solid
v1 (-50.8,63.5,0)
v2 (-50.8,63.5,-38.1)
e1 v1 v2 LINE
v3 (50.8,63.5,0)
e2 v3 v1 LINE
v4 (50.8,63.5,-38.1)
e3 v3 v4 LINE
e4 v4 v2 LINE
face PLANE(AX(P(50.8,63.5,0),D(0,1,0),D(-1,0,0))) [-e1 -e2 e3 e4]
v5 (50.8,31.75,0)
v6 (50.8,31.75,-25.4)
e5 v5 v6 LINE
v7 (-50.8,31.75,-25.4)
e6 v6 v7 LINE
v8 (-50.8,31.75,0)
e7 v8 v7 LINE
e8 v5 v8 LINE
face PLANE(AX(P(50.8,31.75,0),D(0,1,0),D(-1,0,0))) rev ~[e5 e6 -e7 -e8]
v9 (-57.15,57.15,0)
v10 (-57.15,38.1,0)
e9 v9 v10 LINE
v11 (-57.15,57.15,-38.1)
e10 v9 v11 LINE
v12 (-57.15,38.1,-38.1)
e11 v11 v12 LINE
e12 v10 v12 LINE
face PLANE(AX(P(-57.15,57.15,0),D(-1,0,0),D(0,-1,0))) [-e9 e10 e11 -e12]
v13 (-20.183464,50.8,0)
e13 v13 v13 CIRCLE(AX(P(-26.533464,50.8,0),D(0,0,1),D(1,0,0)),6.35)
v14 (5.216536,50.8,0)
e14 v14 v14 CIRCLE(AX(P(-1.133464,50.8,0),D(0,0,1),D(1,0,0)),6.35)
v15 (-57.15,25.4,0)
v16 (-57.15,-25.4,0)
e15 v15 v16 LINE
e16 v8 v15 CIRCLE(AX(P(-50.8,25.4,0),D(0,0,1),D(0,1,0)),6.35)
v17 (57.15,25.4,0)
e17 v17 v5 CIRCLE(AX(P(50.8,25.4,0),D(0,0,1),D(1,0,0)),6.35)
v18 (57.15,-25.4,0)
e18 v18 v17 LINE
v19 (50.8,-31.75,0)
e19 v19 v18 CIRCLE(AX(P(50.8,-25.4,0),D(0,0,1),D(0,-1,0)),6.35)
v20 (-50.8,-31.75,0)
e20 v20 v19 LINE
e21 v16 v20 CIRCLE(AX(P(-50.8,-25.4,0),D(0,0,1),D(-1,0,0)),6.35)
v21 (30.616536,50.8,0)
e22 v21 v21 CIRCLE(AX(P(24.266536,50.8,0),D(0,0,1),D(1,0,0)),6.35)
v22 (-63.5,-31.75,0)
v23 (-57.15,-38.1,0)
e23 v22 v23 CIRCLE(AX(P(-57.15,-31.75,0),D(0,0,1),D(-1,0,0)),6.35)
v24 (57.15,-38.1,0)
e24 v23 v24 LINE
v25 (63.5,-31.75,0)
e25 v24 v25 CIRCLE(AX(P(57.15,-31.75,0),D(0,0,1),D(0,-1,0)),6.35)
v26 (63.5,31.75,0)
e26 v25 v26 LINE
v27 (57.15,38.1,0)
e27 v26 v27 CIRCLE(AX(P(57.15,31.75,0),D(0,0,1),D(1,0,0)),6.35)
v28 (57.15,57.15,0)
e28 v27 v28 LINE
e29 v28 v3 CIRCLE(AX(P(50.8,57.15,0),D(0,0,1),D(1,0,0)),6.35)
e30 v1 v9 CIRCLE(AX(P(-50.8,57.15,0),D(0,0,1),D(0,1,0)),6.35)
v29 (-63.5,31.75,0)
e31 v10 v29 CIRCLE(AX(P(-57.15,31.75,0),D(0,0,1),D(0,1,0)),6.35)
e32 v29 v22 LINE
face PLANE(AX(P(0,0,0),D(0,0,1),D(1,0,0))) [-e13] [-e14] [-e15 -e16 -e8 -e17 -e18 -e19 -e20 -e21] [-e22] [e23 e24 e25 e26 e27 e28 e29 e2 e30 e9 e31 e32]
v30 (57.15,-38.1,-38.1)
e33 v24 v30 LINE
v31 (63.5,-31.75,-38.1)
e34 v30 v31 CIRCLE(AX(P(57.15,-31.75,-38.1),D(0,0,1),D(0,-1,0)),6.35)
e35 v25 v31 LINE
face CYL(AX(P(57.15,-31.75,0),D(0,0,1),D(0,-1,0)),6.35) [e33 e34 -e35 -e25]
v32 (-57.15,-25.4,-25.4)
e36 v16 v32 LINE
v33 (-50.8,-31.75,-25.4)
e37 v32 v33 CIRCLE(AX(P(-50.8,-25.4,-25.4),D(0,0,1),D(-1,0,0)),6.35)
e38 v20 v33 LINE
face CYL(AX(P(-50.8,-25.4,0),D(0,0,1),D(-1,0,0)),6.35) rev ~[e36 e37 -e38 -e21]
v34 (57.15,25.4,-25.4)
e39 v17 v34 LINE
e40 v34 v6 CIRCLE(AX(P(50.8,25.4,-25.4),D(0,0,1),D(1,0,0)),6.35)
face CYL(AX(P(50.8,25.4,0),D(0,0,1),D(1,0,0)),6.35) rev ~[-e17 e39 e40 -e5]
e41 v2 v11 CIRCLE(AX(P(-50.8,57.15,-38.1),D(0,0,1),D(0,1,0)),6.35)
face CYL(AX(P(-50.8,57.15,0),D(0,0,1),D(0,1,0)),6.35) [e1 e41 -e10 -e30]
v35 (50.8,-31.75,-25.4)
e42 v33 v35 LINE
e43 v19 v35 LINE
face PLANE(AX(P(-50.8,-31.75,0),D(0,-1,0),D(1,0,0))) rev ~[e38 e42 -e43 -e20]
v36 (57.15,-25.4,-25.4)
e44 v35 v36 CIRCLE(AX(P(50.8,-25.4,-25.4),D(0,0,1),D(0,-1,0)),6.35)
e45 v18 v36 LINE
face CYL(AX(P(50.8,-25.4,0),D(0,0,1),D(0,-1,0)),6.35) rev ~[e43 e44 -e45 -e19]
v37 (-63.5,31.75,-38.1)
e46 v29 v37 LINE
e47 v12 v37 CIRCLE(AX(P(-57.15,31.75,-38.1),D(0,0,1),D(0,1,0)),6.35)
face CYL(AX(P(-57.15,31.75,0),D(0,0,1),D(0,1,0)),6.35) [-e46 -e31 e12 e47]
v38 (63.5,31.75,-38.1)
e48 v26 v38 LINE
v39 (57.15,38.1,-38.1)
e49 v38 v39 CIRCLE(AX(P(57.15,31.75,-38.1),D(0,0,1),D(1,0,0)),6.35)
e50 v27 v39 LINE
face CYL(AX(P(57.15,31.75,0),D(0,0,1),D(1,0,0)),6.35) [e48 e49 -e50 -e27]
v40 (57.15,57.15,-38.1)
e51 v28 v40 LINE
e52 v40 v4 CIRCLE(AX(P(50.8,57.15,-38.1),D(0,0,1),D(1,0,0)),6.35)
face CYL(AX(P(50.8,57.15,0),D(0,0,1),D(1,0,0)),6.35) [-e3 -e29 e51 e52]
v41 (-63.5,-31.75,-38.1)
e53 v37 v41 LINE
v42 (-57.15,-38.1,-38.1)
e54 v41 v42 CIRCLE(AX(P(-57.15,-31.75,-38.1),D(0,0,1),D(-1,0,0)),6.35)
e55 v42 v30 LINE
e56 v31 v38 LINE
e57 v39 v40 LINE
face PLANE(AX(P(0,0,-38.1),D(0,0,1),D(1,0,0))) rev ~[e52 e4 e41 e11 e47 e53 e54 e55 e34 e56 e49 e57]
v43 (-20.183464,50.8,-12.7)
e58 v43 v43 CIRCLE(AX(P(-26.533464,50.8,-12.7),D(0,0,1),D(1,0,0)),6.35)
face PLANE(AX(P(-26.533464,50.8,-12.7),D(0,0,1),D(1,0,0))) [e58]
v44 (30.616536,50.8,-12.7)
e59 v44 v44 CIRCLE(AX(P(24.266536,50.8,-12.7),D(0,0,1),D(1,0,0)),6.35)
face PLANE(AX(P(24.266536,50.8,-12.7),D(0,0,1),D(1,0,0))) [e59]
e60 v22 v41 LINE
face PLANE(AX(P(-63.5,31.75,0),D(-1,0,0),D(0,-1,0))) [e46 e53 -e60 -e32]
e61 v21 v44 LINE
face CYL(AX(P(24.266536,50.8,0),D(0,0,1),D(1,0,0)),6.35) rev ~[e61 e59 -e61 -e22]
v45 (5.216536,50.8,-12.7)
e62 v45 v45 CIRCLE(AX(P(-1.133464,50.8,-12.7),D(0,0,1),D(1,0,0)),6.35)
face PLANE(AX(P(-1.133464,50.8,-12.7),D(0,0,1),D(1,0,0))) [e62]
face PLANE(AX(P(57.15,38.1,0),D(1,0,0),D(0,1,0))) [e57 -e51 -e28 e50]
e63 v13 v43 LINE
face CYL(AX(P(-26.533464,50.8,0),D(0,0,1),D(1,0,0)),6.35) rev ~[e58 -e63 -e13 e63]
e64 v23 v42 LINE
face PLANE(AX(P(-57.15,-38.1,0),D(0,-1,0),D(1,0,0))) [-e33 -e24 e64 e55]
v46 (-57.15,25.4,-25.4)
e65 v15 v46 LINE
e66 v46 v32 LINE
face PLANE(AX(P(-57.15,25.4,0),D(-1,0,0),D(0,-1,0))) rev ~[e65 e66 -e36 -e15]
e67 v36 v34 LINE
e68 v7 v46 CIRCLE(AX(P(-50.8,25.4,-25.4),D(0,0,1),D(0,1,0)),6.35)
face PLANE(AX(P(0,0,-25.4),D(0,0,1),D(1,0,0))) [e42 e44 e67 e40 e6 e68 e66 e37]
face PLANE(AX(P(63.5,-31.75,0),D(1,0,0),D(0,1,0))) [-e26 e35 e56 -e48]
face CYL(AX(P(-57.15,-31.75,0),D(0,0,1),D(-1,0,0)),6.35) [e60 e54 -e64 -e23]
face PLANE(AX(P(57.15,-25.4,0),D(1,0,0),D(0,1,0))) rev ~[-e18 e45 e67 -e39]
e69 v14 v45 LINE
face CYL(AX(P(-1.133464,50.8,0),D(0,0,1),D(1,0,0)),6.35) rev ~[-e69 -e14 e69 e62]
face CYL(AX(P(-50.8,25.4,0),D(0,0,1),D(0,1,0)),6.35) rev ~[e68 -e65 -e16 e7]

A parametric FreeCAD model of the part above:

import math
import FreeCAD as App
import Part
import Sketcher
Q = App.Units.Quantity

doc = App.newDocument("Part")
body = doc.addObject("PartDesign::Body", "Body")

# Sketch on XY plane
sketch1 = doc.addObject("Sketcher::SketchObject", "Sketch")
body.addObject(sketch1)
sketch1.AttachmentSupport = (doc.XY_Plane, [""])
sketch1.MapMode = "FlatFace"
sketch1.addGeometry(Part.ArcOfCircle(Part.Circle(App.Vector(-57.15, -31.75, 0), App.Vector(0, 0, 1), 6.35), math.radians(180), math.radians(270)), False)
sketch1.addGeometry(Part.LineSegment(App.Vector(-57.15, -38.1, 0), App.Vector(57.15, -38.1, 0)), False)
sketch1.addGeometry(Part.ArcOfCircle(Part.Circle(App.Vector(57.15, -31.75, 0), App.Vector(0, 0, 1), 6.35), math.radians(-90), math.radians(0)), False)
sketch1.addGeometry(Part.LineSegment(App.Vector(63.5, -31.75, 0), App.Vector(63.5, 31.75, 0)), False)
sketch1.addGeometry(Part.ArcOfCircle(Part.Circle(App.Vector(57.15, 31.75, 0), App.Vector(0, 0, 1), 6.35), math.radians(0), math.radians(90)), False)
sketch1.addGeometry(Part.LineSegment(App.Vector(57.15, 38.1, 0), App.Vector(57.15, 57.15, 0)), False)
sketch1.addGeometry(Part.ArcOfCircle(Part.Circle(App.Vector(50.8, 57.15, 0), App.Vector(0, 0, 1), 6.35), math.radians(0), math.radians(90)), False)
sketch1.addGeometry(Part.LineSegment(App.Vector(50.8, 63.5, 0), App.Vector(-50.8, 63.5, 0)), False)
sketch1.addGeometry(Part.ArcOfCircle(Part.Circle(App.Vector(-50.8, 57.15, 0), App.Vector(0, 0, 1), 6.35), math.radians(90), math.radians(180)), False)
sketch1.addGeometry(Part.LineSegment(App.Vector(-57.15, 57.15, 0), App.Vector(-57.15, 38.1, 0)), False)
sketch1.addGeometry(Part.ArcOfCircle(Part.Circle(App.Vector(-57.15, 31.75, 0), App.Vector(0, 0, 1), 6.35), math.radians(90), math.radians(180)), False)
sketch1.addGeometry(Part.LineSegment(App.Vector(-63.5, 31.75, 0), App.Vector(-63.5, -31.75, 0)), False)
sketch1.addConstraint(Sketcher.Constraint("Tangent", 0, 2, 1, 1))
sketch1.addConstraint(Sketcher.Constraint("Tangent", 1, 2, 2, 1))
sketch1.addConstraint(Sketcher.Constraint("Tangent", 2, 2, 3, 1))
sketch1.addConstraint(Sketcher.Constraint("Tangent", 3, 2, 4, 1))
sketch1.addConstraint(Sketcher.Constraint("Coincident", 4, 2, 5, 1))
sketch1.addConstraint(Sketcher.Constraint("Tangent", 5, 2, 6, 1))
sketch1.addConstraint(Sketcher.Constraint("Tangent", 6, 2, 7, 1))
sketch1.addConstraint(Sketcher.Constraint("Tangent", 7, 2, 8, 1))
sketch1.addConstraint(Sketcher.Constraint("Tangent", 8, 2, 9, 1))
sketch1.addConstraint(Sketcher.Constraint("Coincident", 9, 2, 10, 1))
sketch1.addConstraint(Sketcher.Constraint("Tangent", 10, 2, 11, 1))
sketch1.addConstraint(Sketcher.Constraint("Tangent", 11, 2, 0, 1))
sketch1.addConstraint(Sketcher.Constraint("Horizontal", 1))
sketch1.addConstraint(Sketcher.Constraint("Vertical", 3))
sketch1.addConstraint(Sketcher.Constraint("Vertical", 5))
sketch1.addConstraint(Sketcher.Constraint("Horizontal", 7))
sketch1.addConstraint(Sketcher.Constraint("Vertical", 9))
sketch1.addConstraint(Sketcher.Constraint("Vertical", 11))
sketch1.addConstraint(Sketcher.Constraint("Equal", 0, 2))
sketch1.addConstraint(Sketcher.Constraint("Equal", 2, 4))
sketch1.addConstraint(Sketcher.Constraint("Equal", 4, 6))
sketch1.addConstraint(Sketcher.Constraint("Equal", 6, 8))
sketch1.addConstraint(Sketcher.Constraint("Equal", 8, 10))
sketch1.addConstraint(Sketcher.Constraint("Symmetric", 0, 3, 4, 3, -1, 1))
sketch1.addConstraint(Sketcher.Constraint("Symmetric", 1, 2, 9, 2, -1, 1))
sketch1.addConstraint(Sketcher.Constraint("Vertical", 1, 2, 4, 2))
sketch1.addConstraint(Sketcher.Constraint("DistanceX", 7, 2, 7, 1, Q("4 in")))
sketch1.addConstraint(Sketcher.Constraint("Radius", 0, Q("0.25 in")))
sketch1.addConstraint(Sketcher.Constraint("DistanceY", 3, 1, 3, 2, Q("2.5 in")))
sketch1.addConstraint(Sketcher.Constraint("DistanceY", 4, 3, 6, 3, Q("1 in")))
pad1 = doc.addObject("PartDesign::Pad", "Pad")
body.addObject(pad1)
pad1.Profile = sketch1
pad1.Length = Q("1.5 in")
pad1.Reversed = True

# Sketch on XY plane
sketch2 = doc.addObject("Sketcher::SketchObject", "Sketch001")
body.addObject(sketch2)
sketch2.AttachmentSupport = (doc.XY_Plane, [""])
sketch2.MapMode = "FlatFace"
sketch2.addGeometry(Part.LineSegment(App.Vector(50.8, 31.75, 0), App.Vector(-50.8, 31.75, 0)), False)
sketch2.addGeometry(Part.ArcOfCircle(Part.Circle(App.Vector(-50.8, 25.4, 0), App.Vector(0, 0, 1), 6.35), math.radians(90), math.radians(180)), False)
sketch2.addGeometry(Part.LineSegment(App.Vector(-57.15, 25.4, 0), App.Vector(-57.15, -25.4, 0)), False)
sketch2.addGeometry(Part.ArcOfCircle(Part.Circle(App.Vector(-50.8, -25.4, 0), App.Vector(0, 0, 1), 6.35), math.radians(180), math.radians(270)), False)
sketch2.addGeometry(Part.LineSegment(App.Vector(-50.8, -31.75, 0), App.Vector(50.8, -31.75, 0)), False)
sketch2.addGeometry(Part.ArcOfCircle(Part.Circle(App.Vector(50.8, -25.4, 0), App.Vector(0, 0, 1), 6.35), math.radians(-90), math.radians(0)), False)
sketch2.addGeometry(Part.LineSegment(App.Vector(57.15, -25.4, 0), App.Vector(57.15, 25.4, 0)), False)
sketch2.addGeometry(Part.ArcOfCircle(Part.Circle(App.Vector(50.8, 25.4, 0), App.Vector(0, 0, 1), 6.35), math.radians(0), math.radians(90)), False)
sketch2.addConstraint(Sketcher.Constraint("Tangent", 0, 2, 1, 1))
sketch2.addConstraint(Sketcher.Constraint("Tangent", 1, 2, 2, 1))
sketch2.addConstraint(Sketcher.Constraint("Tangent", 2, 2, 3, 1))
sketch2.addConstraint(Sketcher.Constraint("Tangent", 3, 2, 4, 1))
sketch2.addConstraint(Sketcher.Constraint("Tangent", 4, 2, 5, 1))
sketch2.addConstraint(Sketcher.Constraint("Tangent", 5, 2, 6, 1))
sketch2.addConstraint(Sketcher.Constraint("Tangent", 6, 2, 7, 1))
sketch2.addConstraint(Sketcher.Constraint("Tangent", 7, 2, 0, 1))
sketch2.addConstraint(Sketcher.Constraint("Horizontal", 0))
sketch2.addConstraint(Sketcher.Constraint("Vertical", 2))
sketch2.addConstraint(Sketcher.Constraint("Horizontal", 4))
sketch2.addConstraint(Sketcher.Constraint("Vertical", 6))
sketch2.addConstraint(Sketcher.Constraint("Equal", 1, 3))
sketch2.addConstraint(Sketcher.Constraint("Equal", 3, 5))
sketch2.addConstraint(Sketcher.Constraint("Equal", 5, 7))
sketch2.addConstraint(Sketcher.Constraint("Symmetric", 1, 3, 5, 3, -1, 1))
sketch2.addConstraint(Sketcher.Constraint("DistanceX", 0, 2, 0, 1, Q("4 in")))
sketch2.addConstraint(Sketcher.Constraint("DistanceY", 2, 2, 2, 1, Q("2 in")))
sketch2.addConstraint(Sketcher.Constraint("Radius", 1, Q("0.25 in")))
pocket1 = doc.addObject("PartDesign::Pocket", "Pocket")
body.addObject(pocket1)
pocket1.Profile = sketch2
pocket1.Length = Q("1 in")

# Sketch on XY plane
sketch3 = doc.addObject("Sketcher::SketchObject", "Sketch002")
body.addObject(sketch3)
sketch3.AttachmentSupport = (doc.XY_Plane, [""])
sketch3.MapMode = "FlatFace"
sketch3.addGeometry(Part.Circle(App.Vector(-26.533464, 50.8, 0), App.Vector(0, 0, 1), 6.35), False)
sketch3.addGeometry(Part.Circle(App.Vector(-1.133464, 50.8, 0), App.Vector(0, 0, 1), 6.35), False)
sketch3.addGeometry(Part.Circle(App.Vector(24.266536, 50.8, 0), App.Vector(0, 0, 1), 6.35), False)
sketch3.addConstraint(Sketcher.Constraint("Equal", 0, 1))
sketch3.addConstraint(Sketcher.Constraint("Equal", 1, 2))
sketch3.addConstraint(Sketcher.Constraint("Horizontal", 0, 3, 1, 3))
sketch3.addConstraint(Sketcher.Constraint("Horizontal", 1, 3, 2, 3))
sketch3.addConstraint(Sketcher.Constraint("Diameter", 0, Q("0.5 in")))
sketch3.addConstraint(Sketcher.Constraint("DistanceY", -1, 1, 0, 3, Q("2 in")))
sketch3.addConstraint(Sketcher.Constraint("DistanceX", 0, 3, 1, 3, Q("1 in")))
sketch3.addConstraint(Sketcher.Constraint("DistanceX", 1, 3, 2, 3, Q("1 in")))
sketch3.addConstraint(Sketcher.Constraint("DistanceX", 0, 3, -1, 1, 26.533464))
pocket2 = doc.addObject("PartDesign::Pocket", "Pocket001")
body.addObject(pocket2)
pocket2.Profile = sketch3
pocket2.Length = Q("0.5 in")

doc.recompute()
